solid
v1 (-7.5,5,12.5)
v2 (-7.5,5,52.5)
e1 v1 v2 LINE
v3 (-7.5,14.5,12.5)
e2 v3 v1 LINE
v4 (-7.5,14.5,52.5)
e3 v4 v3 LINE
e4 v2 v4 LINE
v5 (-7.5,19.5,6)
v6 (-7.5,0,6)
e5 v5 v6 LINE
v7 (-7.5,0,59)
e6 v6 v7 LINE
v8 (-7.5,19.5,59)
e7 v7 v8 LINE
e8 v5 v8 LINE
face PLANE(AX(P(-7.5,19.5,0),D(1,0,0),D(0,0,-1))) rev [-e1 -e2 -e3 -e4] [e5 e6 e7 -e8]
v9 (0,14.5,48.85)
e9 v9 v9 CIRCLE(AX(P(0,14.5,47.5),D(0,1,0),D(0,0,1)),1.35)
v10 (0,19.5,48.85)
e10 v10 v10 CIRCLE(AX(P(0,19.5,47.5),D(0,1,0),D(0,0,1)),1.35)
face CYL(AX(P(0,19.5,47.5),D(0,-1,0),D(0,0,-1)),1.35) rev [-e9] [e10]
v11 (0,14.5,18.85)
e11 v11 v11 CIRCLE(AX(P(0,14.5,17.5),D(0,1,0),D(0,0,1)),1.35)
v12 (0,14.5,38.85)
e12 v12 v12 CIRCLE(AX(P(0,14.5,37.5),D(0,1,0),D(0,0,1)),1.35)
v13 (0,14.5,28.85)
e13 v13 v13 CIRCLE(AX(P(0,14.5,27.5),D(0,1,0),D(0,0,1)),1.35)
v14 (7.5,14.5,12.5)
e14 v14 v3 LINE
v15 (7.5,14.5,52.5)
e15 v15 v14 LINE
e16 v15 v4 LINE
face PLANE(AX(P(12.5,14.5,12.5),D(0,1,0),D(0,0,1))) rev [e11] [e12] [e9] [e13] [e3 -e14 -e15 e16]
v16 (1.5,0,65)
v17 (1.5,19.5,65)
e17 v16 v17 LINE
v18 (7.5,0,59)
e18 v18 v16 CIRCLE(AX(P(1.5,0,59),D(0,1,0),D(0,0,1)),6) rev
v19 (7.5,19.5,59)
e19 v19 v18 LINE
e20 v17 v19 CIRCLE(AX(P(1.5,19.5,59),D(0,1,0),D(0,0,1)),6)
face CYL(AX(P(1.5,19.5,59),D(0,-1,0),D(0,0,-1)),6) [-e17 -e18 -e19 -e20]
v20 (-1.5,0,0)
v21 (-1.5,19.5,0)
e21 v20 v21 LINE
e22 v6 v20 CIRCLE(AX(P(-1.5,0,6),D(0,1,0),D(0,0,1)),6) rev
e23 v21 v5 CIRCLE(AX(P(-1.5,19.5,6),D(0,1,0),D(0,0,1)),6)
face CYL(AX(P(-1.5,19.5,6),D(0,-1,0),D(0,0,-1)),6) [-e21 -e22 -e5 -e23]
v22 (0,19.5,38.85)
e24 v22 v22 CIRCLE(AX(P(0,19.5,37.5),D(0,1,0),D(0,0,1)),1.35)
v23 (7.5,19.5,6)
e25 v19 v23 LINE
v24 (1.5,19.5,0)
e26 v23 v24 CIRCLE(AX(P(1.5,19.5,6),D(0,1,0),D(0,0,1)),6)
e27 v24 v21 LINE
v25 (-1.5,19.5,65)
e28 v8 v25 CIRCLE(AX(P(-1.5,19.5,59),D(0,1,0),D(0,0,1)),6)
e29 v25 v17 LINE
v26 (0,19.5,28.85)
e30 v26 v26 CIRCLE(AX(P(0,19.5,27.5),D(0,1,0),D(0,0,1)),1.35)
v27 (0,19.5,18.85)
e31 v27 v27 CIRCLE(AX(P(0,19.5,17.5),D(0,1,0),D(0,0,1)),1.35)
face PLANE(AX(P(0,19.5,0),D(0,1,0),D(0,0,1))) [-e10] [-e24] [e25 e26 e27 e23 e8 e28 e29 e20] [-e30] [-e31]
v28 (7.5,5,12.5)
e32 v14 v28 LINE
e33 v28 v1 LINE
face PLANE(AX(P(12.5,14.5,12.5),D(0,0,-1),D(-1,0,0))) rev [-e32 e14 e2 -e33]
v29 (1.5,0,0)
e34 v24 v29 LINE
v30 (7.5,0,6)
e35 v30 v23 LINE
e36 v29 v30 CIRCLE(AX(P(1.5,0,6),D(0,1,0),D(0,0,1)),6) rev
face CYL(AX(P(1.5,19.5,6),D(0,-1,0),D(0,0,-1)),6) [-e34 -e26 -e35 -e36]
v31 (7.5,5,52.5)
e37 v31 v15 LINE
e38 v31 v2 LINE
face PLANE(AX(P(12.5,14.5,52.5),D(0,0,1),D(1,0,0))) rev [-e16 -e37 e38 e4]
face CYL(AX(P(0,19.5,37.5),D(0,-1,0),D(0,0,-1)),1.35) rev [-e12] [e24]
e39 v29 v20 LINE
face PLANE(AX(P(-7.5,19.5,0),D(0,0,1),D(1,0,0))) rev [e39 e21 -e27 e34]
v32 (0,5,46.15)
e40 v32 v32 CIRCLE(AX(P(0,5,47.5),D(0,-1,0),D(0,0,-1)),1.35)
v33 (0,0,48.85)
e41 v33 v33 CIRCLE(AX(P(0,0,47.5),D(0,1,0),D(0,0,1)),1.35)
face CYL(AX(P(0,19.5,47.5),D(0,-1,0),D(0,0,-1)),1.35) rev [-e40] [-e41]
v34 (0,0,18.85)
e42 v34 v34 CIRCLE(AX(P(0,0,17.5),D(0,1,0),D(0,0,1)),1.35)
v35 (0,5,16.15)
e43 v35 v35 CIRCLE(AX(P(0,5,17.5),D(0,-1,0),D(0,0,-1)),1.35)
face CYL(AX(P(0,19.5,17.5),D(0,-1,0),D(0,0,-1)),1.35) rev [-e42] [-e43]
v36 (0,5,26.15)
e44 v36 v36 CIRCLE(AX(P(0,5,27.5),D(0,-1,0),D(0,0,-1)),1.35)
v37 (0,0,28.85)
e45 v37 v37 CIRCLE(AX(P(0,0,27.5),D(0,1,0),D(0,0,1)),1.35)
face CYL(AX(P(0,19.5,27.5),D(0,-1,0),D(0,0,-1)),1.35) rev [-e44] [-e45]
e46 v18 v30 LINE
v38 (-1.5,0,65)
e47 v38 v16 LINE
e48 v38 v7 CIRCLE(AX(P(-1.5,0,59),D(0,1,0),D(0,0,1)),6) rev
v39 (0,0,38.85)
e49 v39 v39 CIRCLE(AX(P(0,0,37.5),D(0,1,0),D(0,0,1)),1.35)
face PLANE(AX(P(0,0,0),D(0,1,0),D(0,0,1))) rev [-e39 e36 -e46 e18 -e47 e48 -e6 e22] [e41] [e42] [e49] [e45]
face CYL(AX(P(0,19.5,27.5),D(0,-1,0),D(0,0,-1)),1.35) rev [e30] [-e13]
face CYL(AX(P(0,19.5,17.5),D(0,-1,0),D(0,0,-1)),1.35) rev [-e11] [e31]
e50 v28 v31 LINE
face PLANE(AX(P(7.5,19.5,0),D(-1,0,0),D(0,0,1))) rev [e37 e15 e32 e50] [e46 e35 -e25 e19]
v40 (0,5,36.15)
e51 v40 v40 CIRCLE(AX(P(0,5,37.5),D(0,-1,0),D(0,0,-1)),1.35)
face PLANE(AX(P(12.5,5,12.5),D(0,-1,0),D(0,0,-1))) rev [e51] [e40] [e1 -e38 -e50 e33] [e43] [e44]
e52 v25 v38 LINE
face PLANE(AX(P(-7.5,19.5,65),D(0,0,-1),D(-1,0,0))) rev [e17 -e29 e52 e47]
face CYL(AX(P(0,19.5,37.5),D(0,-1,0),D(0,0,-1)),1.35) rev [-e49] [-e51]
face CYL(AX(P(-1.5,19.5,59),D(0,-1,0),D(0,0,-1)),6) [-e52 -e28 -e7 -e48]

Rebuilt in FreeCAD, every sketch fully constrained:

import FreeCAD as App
import Part
import Sketcher
from FreeCAD import Vector


def edges_at(feature, points):
    """Names of the edges that pass closest to the given points."""
    edges = feature.Shape.Edges
    near = lambda p: min(range(len(edges)), key=lambda i: edges[i].distToShape(Part.Vertex(*p))[0])
    return sorted({f"Edge{near(p) + 1}" for p in points})


def add_polygon(sketch, points):
    """Adds a closed chain of lines whose ends are joined by coincident constraints."""
    first, n = sketch.GeometryCount, len(points)
    for a, b in zip(points, points[1:] + points[:1]):
        sketch.addGeometry(Part.LineSegment(App.Vector(*a, 0), App.Vector(*b, 0)), False)
    for i in range(n):
        sketch.addConstraint(Sketcher.Constraint("Coincident", first + i, 2, first + (i + 1) % n, 1))

doc = App.newDocument("Part")
body = doc.addObject("PartDesign::Body", "Body")

# Sketch on XZ plane
sketch1 = doc.addObject("Sketcher::SketchObject", "Sketch")
body.addObject(sketch1)
sketch1.AttachmentSupport = (doc.XZ_Plane, [""])
sketch1.MapMode = "FlatFace"
add_polygon(sketch1, [(-7.5, 0), (-7.5, 65), (7.5, 65), (7.5, 0)])  # lines 0-3
sketch1.addGeometry(Part.Circle(Vector(0, 47.5, 0), Vector(0, 0, 1), 1.4), False)  # 4
sketch1.addGeometry(Part.Circle(Vector(0, 37.5, 0), Vector(0, 0, 1), 1.4), False)  # 5
sketch1.addGeometry(Part.Circle(Vector(0, 27.5, 0), Vector(0, 0, 1), 1.4), False)  # 6
sketch1.addGeometry(Part.Circle(Vector(0, 17.5, 0), Vector(0, 0, 1), 1.4), False)  # 7
sketch1.addConstraint([
    Sketcher.Constraint("Vertical", 0),
    Sketcher.Constraint("Horizontal", 1),
    Sketcher.Constraint("Vertical", 2),
    Sketcher.Constraint("Horizontal", 3),
    Sketcher.Constraint("Equal", 4, 5),
    Sketcher.Constraint("Equal", 5, 6),
    Sketcher.Constraint("Equal", 6, 7),
    Sketcher.Constraint("Symmetric", 2, 2, 3, 2, -1, 1),
    Sketcher.Constraint("PointOnObject", 4, 3, -2),
    Sketcher.Constraint("PointOnObject", 5, 3, -2),
    Sketcher.Constraint("PointOnObject", 6, 3, -2),
    Sketcher.Constraint("PointOnObject", 7, 3, -2),
    Sketcher.Constraint("Diameter", 4, 2.7),
    Sketcher.Constraint("DistanceX", 1, 1, 1, 2, 15.0),
    Sketcher.Constraint("DistanceY", 0, 1, 0, 2, 65.0),
    Sketcher.Constraint("DistanceY", 5, 3, 4, 3, 10.0),
    Sketcher.Constraint("DistanceY", 6, 3, 5, 3, 10.0),
    Sketcher.Constraint("DistanceY", 7, 3, 6, 3, 10.0),
    Sketcher.Constraint("DistanceY", -1, 1, 4, 3, 47.5),
])
pad1 = doc.addObject("PartDesign::Pad", "Pad")
body.addObject(pad1)
pad1.Profile = sketch1
pad1.Length = 19.5
pad1.Reversed = True
doc.recompute()

fillet = doc.addObject("PartDesign::Fillet", "Fillet")
body.addObject(fillet)
fillet.Base = (pad1, edges_at(pad1, [
    (-7.5, 9.75, 0),
    (7.5, 9.75, 0),
    (7.5, 9.75, 65),
    (-7.5, 9.75, 65),
]))
fillet.Radius = 6

# Sketch on YZ plane
sketch2 = doc.addObject("Sketcher::SketchObject", "Sketch001")
body.addObject(sketch2)
sketch2.AttachmentSupport = (doc.YZ_Plane, [""])
sketch2.MapMode = "FlatFace"
sketch2.AttachmentOffset = App.Placement(Vector(0, 0, -7.5), App.Rotation())
add_polygon(sketch2, [(14, 12), (5, 12), (5, 52), (14, 52)])  # lines 0-3
sketch2.addConstraint([
    Sketcher.Constraint("Horizontal", 0),
    Sketcher.Constraint("Vertical", 1),
    Sketcher.Constraint("Horizontal", 2),
    Sketcher.Constraint("Vertical", 3),
    Sketcher.Constraint("DistanceY", 1, 1, 1, 2, 40.0),
    Sketcher.Constraint("DistanceX", 0, 2, 0, 1, 9.5),
    Sketcher.Constraint("DistanceX", -1, 1, 0, 2, 5.0),
    Sketcher.Constraint("DistanceY", -1, 1, 0, 2, 12.5),
])
pocket1 = doc.addObject("PartDesign::Pocket", "Pocket")
body.addObject(pocket1)
pocket1.Profile = sketch2
pocket1.Length = 20
pocket1.Reversed = True

doc.recompute()
